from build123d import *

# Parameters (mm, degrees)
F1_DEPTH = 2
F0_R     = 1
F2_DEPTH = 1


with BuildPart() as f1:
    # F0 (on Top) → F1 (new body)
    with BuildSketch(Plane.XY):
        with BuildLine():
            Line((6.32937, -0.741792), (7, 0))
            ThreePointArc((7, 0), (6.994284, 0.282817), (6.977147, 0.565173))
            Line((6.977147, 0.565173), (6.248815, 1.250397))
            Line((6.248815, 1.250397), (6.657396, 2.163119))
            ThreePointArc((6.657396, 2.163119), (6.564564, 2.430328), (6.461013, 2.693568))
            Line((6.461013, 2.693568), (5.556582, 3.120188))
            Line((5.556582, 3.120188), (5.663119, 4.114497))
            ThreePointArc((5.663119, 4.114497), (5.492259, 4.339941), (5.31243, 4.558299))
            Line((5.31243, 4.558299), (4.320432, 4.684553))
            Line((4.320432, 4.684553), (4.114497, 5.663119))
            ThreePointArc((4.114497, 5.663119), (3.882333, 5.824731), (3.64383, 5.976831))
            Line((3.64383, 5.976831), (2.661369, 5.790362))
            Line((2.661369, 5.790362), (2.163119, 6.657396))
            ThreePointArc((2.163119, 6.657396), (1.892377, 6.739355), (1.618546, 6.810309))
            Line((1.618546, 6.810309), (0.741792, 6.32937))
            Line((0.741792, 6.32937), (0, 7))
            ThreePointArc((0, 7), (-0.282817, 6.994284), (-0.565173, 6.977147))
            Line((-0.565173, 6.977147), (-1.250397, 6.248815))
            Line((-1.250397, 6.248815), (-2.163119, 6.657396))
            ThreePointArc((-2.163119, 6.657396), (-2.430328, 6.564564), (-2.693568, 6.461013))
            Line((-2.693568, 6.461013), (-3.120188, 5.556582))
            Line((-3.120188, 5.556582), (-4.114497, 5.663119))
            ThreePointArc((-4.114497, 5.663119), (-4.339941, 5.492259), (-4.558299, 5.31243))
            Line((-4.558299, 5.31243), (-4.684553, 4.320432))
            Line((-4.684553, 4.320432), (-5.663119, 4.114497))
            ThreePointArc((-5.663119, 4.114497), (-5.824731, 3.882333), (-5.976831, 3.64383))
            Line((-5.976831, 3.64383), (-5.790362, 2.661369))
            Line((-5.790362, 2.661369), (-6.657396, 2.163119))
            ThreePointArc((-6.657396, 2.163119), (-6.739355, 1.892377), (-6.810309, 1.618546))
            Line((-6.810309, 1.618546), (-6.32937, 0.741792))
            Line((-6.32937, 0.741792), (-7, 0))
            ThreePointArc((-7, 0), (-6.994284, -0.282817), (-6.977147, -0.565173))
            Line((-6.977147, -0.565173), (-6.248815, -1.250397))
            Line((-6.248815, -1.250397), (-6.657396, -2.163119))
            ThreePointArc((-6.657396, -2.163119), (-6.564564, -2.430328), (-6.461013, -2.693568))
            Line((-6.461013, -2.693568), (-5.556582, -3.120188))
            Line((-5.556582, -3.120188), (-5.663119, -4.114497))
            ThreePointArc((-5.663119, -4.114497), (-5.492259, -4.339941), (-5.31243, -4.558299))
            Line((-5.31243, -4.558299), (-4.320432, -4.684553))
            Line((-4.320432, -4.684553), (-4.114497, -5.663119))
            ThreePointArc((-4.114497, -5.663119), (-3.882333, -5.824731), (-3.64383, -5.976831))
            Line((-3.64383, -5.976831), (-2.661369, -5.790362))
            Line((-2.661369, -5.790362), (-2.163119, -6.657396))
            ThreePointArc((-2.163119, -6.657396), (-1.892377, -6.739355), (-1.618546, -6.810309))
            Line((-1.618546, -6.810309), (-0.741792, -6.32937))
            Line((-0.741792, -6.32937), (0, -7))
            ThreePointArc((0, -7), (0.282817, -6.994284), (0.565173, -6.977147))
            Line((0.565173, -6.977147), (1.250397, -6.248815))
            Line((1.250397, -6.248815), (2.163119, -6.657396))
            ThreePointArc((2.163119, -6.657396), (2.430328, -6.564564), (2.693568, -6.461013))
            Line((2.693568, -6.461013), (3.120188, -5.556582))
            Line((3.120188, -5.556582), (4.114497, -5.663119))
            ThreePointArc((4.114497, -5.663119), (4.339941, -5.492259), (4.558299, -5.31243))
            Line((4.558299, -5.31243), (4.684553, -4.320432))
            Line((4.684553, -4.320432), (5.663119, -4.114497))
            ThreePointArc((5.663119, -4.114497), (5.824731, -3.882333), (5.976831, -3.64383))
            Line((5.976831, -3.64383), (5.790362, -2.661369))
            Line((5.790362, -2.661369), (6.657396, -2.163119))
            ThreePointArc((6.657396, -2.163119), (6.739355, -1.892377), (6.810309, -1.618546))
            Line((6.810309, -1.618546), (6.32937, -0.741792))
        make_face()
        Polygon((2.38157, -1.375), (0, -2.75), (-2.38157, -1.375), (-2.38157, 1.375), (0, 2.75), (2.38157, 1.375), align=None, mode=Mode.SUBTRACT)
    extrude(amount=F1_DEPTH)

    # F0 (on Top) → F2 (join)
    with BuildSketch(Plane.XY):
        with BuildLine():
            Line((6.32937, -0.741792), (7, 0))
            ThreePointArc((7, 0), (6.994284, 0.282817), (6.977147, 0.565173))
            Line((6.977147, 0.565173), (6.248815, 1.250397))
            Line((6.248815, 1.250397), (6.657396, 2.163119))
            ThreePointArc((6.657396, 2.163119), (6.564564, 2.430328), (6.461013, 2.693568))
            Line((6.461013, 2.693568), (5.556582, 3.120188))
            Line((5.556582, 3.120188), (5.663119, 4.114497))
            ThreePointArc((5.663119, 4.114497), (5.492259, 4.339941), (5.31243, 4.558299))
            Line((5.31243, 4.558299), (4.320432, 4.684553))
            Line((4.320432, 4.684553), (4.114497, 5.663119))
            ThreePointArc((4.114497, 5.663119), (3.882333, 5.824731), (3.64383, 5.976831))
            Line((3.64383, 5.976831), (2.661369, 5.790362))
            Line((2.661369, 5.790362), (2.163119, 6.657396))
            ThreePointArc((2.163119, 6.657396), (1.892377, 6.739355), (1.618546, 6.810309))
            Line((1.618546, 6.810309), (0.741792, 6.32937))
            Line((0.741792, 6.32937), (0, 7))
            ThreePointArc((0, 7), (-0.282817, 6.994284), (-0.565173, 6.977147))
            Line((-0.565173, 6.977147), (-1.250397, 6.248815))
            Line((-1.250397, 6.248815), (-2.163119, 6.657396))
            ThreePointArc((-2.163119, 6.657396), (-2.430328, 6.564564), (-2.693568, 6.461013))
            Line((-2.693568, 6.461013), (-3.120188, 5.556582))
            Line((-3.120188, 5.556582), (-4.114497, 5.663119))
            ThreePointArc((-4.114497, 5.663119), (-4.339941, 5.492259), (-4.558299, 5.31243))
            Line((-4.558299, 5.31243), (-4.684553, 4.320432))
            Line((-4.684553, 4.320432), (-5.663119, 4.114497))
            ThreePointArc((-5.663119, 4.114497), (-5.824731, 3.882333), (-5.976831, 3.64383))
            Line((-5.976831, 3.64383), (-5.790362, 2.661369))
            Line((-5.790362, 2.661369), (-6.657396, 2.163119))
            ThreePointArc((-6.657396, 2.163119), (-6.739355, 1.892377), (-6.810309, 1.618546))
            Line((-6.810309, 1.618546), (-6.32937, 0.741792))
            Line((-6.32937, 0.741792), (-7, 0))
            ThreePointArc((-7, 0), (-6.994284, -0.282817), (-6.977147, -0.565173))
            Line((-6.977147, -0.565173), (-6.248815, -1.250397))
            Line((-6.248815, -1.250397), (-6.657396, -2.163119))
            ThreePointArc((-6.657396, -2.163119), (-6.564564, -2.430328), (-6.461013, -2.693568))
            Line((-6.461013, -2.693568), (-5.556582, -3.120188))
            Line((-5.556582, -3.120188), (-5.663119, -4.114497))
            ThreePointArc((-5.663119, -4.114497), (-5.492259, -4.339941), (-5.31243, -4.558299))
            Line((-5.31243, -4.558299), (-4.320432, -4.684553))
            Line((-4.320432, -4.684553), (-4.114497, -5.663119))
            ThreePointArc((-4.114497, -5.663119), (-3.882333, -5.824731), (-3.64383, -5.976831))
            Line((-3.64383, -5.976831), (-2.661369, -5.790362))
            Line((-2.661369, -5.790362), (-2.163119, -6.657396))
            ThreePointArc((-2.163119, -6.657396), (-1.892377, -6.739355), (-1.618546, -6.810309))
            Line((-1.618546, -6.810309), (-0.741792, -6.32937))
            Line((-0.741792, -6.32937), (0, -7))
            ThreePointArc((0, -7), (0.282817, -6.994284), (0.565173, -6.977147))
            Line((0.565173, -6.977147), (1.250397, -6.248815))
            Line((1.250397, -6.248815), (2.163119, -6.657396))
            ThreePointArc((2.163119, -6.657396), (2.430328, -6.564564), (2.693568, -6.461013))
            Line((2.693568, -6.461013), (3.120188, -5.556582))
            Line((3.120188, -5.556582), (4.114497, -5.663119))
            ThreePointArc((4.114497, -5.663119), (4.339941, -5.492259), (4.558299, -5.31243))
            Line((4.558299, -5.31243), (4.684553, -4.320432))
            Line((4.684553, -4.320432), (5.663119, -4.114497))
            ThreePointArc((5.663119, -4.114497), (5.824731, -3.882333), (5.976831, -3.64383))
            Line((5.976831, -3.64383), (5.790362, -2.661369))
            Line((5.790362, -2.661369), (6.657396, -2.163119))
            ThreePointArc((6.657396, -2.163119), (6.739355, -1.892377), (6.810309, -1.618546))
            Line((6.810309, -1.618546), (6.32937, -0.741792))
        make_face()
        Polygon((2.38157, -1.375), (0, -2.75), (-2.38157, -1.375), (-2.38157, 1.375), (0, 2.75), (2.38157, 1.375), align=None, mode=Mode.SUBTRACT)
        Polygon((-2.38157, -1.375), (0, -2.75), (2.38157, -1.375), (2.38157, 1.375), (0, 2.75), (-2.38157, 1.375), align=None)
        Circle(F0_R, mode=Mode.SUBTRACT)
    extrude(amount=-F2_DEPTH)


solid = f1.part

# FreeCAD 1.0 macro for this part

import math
import FreeCAD as App
import Part
import Sketcher
Q = App.Units.Quantity

doc = App.newDocument("Part")
body = doc.addObject("PartDesign::Body", "Body")

sketch1 = body.newObject("Sketcher::SketchObject", "Sketch")
sketch1.AttachmentSupport = (doc.getObject("XY_Plane"), [""])
sketch1.MapMode = "FlatFace"
sketch1.addGeometry([
    Part.LineSegment(App.Vector(6.32937, -0.741792, 0), App.Vector(7, 0, 0)),
    Part.ArcOfCircle(Part.Circle(App.Vector(-0.000547, -0.000021, 0), App.Vector(0, 0, 1), 7.000547), math.radians(0.000176), math.radians(4.630858)),
    Part.LineSegment(App.Vector(6.977147, 0.565173, 0), App.Vector(6.248815, 1.250397, 0)),
    Part.LineSegment(App.Vector(6.248815, 1.250397, 0), App.Vector(6.657396, 2.163119, 0)),
    Part.ArcOfCircle(Part.Circle(App.Vector(-0.00055, -0.000211, 0), App.Vector(0, 0, 1), 7.000589), math.radians(18.00025), math.radians(22.630903)),
    Part.LineSegment(App.Vector(6.461013, 2.693568, 0), App.Vector(5.556582, 3.120188, 0)),
    Part.LineSegment(App.Vector(5.556582, 3.120188, 0), App.Vector(5.663119, 4.114497, 0)),
    Part.ArcOfCircle(Part.Circle(App.Vector(-0.000379, -0.000299, 0), App.Vector(0, 0, 1), 7.000483), math.radians(36.000162), math.radians(40.630889)),
    Part.LineSegment(App.Vector(5.31243, 4.558299, 0), App.Vector(4.320432, 4.684553, 0)),
    Part.LineSegment(App.Vector(4.320432, 4.684553, 0), App.Vector(4.114497, 5.663119, 0)),
    Part.ArcOfCircle(Part.Circle(App.Vector(-0.000166, -0.000244, 0), App.Vector(0, 0, 1), 7.000295), math.radians(54.000071), math.radians(58.630919)),
    Part.LineSegment(App.Vector(3.64383, 5.976831, 0), App.Vector(2.661369, 5.790362, 0)),
    Part.LineSegment(App.Vector(2.661369, 5.790362, 0), App.Vector(2.163119, 6.657396, 0)),
    Part.ArcOfCircle(Part.Circle(App.Vector(-0.000138, -0.00051, 0), App.Vector(0, 0, 1), 7.000528), math.radians(72.000215), math.radians(76.630905)),
    Part.LineSegment(App.Vector(1.618546, 6.810309, 0), App.Vector(0.741792, 6.32937, 0)),
    Part.LineSegment(App.Vector(0.741792, 6.32937, 0), App.Vector(0, 7, 0)),
    Part.ArcOfCircle(Part.Circle(App.Vector(0.000021, -0.000547, 0), App.Vector(0, 0, 1), 7.000547), math.radians(90.000176), math.radians(94.630858)),
    Part.LineSegment(App.Vector(-0.565173, 6.977147, 0), App.Vector(-1.250397, 6.248815, 0)),
    Part.LineSegment(App.Vector(-1.250397, 6.248815, 0), App.Vector(-2.163119, 6.657396, 0)),
    Part.ArcOfCircle(Part.Circle(App.Vector(0.000211, -0.00055, 0), App.Vector(0, 0, 1), 7.000589), math.radians(108.00025), math.radians(112.630903)),
    Part.LineSegment(App.Vector(-2.693568, 6.461013, 0), App.Vector(-3.120188, 5.556582, 0)),
    Part.LineSegment(App.Vector(-3.120188, 5.556582, 0), App.Vector(-4.114497, 5.663119, 0)),
    Part.ArcOfCircle(Part.Circle(App.Vector(0.000299, -0.000379, 0), App.Vector(0, 0, 1), 7.000483), math.radians(126.000162), math.radians(130.630889)),
    Part.LineSegment(App.Vector(-4.558299, 5.31243, 0), App.Vector(-4.684553, 4.320432, 0)),
    Part.LineSegment(App.Vector(-4.684553, 4.320432, 0), App.Vector(-5.663119, 4.114497, 0)),
    Part.ArcOfCircle(Part.Circle(App.Vector(0.000244, -0.000166, 0), App.Vector(0, 0, 1), 7.000295), math.radians(144.000071), math.radians(148.630919)),
    Part.LineSegment(App.Vector(-5.976831, 3.64383, 0), App.Vector(-5.790362, 2.661369, 0)),
    Part.LineSegment(App.Vector(-5.790362, 2.661369, 0), App.Vector(-6.657396, 2.163119, 0)),
    Part.ArcOfCircle(Part.Circle(App.Vector(0.00051, -0.000138, 0), App.Vector(0, 0, 1), 7.000528), math.radians(162.000215), math.radians(166.630905)),
    Part.LineSegment(App.Vector(-6.810309, 1.618546, 0), App.Vector(-6.32937, 0.741792, 0)),
    Part.LineSegment(App.Vector(-6.32937, 0.741792, 0), App.Vector(-7, 0, 0)),
    Part.ArcOfCircle(Part.Circle(App.Vector(0.000547, 0.000021, 0), App.Vector(0, 0, 1), 7.000547), math.radians(-179.999824), math.radians(-175.369142)),
    Part.LineSegment(App.Vector(-6.977147, -0.565173, 0), App.Vector(-6.248815, -1.250397, 0)),
    Part.LineSegment(App.Vector(-6.248815, -1.250397, 0), App.Vector(-6.657396, -2.163119, 0)),
    Part.ArcOfCircle(Part.Circle(App.Vector(0.00055, 0.000211, 0), App.Vector(0, 0, 1), 7.000589), math.radians(-161.99975), math.radians(-157.369097)),
    Part.LineSegment(App.Vector(-6.461013, -2.693568, 0), App.Vector(-5.556582, -3.120188, 0)),
    Part.LineSegment(App.Vector(-5.556582, -3.120188, 0), App.Vector(-5.663119, -4.114497, 0)),
    Part.ArcOfCircle(Part.Circle(App.Vector(0.000379, 0.000299, 0), App.Vector(0, 0, 1), 7.000483), math.radians(-143.999838), math.radians(-139.369111)),
    Part.LineSegment(App.Vector(-5.31243, -4.558299, 0), App.Vector(-4.320432, -4.684553, 0)),
    Part.LineSegment(App.Vector(-4.320432, -4.684553, 0), App.Vector(-4.114497, -5.663119, 0)),
    Part.ArcOfCircle(Part.Circle(App.Vector(0.000166, 0.000244, 0), App.Vector(0, 0, 1), 7.000295), math.radians(-125.999929), math.radians(-121.369081)),
    Part.LineSegment(App.Vector(-3.64383, -5.976831, 0), App.Vector(-2.661369, -5.790362, 0)),
    Part.LineSegment(App.Vector(-2.661369, -5.790362, 0), App.Vector(-2.163119, -6.657396, 0)),
    Part.ArcOfCircle(Part.Circle(App.Vector(0.000138, 0.00051, 0), App.Vector(0, 0, 1), 7.000528), math.radians(-107.999785), math.radians(-103.369095)),
    Part.LineSegment(App.Vector(-1.618546, -6.810309, 0), App.Vector(-0.741792, -6.32937, 0)),
    Part.LineSegment(App.Vector(-0.741792, -6.32937, 0), App.Vector(0, -7, 0)),
    Part.ArcOfCircle(Part.Circle(App.Vector(-0.000021, 0.000547, 0), App.Vector(0, 0, 1), 7.000547), math.radians(-89.999824), math.radians(-85.369142)),
    Part.LineSegment(App.Vector(0.565173, -6.977147, 0), App.Vector(1.250397, -6.248815, 0)),
    Part.LineSegment(App.Vector(1.250397, -6.248815, 0), App.Vector(2.163119, -6.657396, 0)),
    Part.ArcOfCircle(Part.Circle(App.Vector(-0.000211, 0.00055, 0), App.Vector(0, 0, 1), 7.000589), math.radians(-71.99975), math.radians(-67.369097)),
    Part.LineSegment(App.Vector(2.693568, -6.461013, 0), App.Vector(3.120188, -5.556582, 0)),
    Part.LineSegment(App.Vector(3.120188, -5.556582, 0), App.Vector(4.114497, -5.663119, 0)),
    Part.ArcOfCircle(Part.Circle(App.Vector(-0.000299, 0.000379, 0), App.Vector(0, 0, 1), 7.000483), math.radians(-53.999838), math.radians(-49.369111)),
    Part.LineSegment(App.Vector(4.558299, -5.31243, 0), App.Vector(4.684553, -4.320432, 0)),
    Part.LineSegment(App.Vector(4.684553, -4.320432, 0), App.Vector(5.663119, -4.114497, 0)),
    Part.ArcOfCircle(Part.Circle(App.Vector(-0.000244, 0.000166, 0), App.Vector(0, 0, 1), 7.000295), math.radians(-35.999929), math.radians(-31.369081)),
    Part.LineSegment(App.Vector(5.976831, -3.64383, 0), App.Vector(5.790362, -2.661369, 0)),
    Part.LineSegment(App.Vector(5.790362, -2.661369, 0), App.Vector(6.657396, -2.163119, 0)),
    Part.ArcOfCircle(Part.Circle(App.Vector(-0.00051, 0.000138, 0), App.Vector(0, 0, 1), 7.000528), math.radians(-17.999785), math.radians(-13.369095)),
    Part.LineSegment(App.Vector(6.810309, -1.618546, 0), App.Vector(6.32937, -0.741792, 0)),
    Part.LineSegment(App.Vector(2.38157, 1.375, 0), App.Vector(2.38157, -1.375, 0)),
    Part.LineSegment(App.Vector(2.38157, -1.375, 0), App.Vector(0, -2.75, 0)),
    Part.LineSegment(App.Vector(0, -2.75, 0), App.Vector(-2.38157, -1.375, 0)),
    Part.LineSegment(App.Vector(-2.38157, -1.375, 0), App.Vector(-2.38157, 1.375, 0)),
    Part.LineSegment(App.Vector(-2.38157, 1.375, 0), App.Vector(0, 2.75, 0)),
    Part.LineSegment(App.Vector(0, 2.75, 0), App.Vector(2.38157, 1.375, 0)),
], False)
sketch1.addConstraint([
    Sketcher.Constraint("Coincident", 0, 2, 1, 1),
    Sketcher.Constraint("Coincident", 1, 2, 2, 1),
    Sketcher.Constraint("Coincident", 2, 2, 3, 1),
    Sketcher.Constraint("Coincident", 3, 2, 4, 1),
    Sketcher.Constraint("Coincident", 4, 2, 5, 1),
    Sketcher.Constraint("Coincident", 5, 2, 6, 1),
    Sketcher.Constraint("Coincident", 6, 2, 7, 1),
    Sketcher.Constraint("Coincident", 7, 2, 8, 1),
    Sketcher.Constraint("Coincident", 8, 2, 9, 1),
    Sketcher.Constraint("Coincident", 9, 2, 10, 1),
    Sketcher.Constraint("Coincident", 10, 2, 11, 1),
    Sketcher.Constraint("Coincident", 11, 2, 12, 1),
    Sketcher.Constraint("Coincident", 12, 2, 13, 1),
    Sketcher.Constraint("Coincident", 13, 2, 14, 1),
    Sketcher.Constraint("Coincident", 14, 2, 15, 1),
    Sketcher.Constraint("Coincident", 15, 2, 16, 1),
    Sketcher.Constraint("Coincident", 16, 2, 17, 1),
    Sketcher.Constraint("Coincident", 17, 2, 18, 1),
    Sketcher.Constraint("Coincident", 18, 2, 19, 1),
    Sketcher.Constraint("Coincident", 19, 2, 20, 1),
    Sketcher.Constraint("Coincident", 20, 2, 21, 1),
    Sketcher.Constraint("Coincident", 21, 2, 22, 1),
    Sketcher.Constraint("Coincident", 22, 2, 23, 1),
    Sketcher.Constraint("Coincident", 23, 2, 24, 1),
    Sketcher.Constraint("Coincident", 24, 2, 25, 1),
    Sketcher.Constraint("Coincident", 25, 2, 26, 1),
    Sketcher.Constraint("Coincident", 26, 2, 27, 1),
    Sketcher.Constraint("Coincident", 27, 2, 28, 1),
    Sketcher.Constraint("Coincident", 28, 2, 29, 1),
    Sketcher.Constraint("Coincident", 29, 2, 30, 1),
    Sketcher.Constraint("Coincident", 30, 2, 31, 1),
    Sketcher.Constraint("Coincident", 31, 2, 32, 1),
    Sketcher.Constraint("Coincident", 32, 2, 33, 1),
    Sketcher.Constraint("Coincident", 33, 2, 34, 1),
    Sketcher.Constraint("Coincident", 34, 2, 35, 1),
    Sketcher.Constraint("Coincident", 35, 2, 36, 1),
    Sketcher.Constraint("Coincident", 36, 2, 37, 1),
    Sketcher.Constraint("Coincident", 37, 2, 38, 1),
    Sketcher.Constraint("Coincident", 38, 2, 39, 1),
    Sketcher.Constraint("Coincident", 39, 2, 40, 1),
    Sketcher.Constraint("Coincident", 40, 2, 41, 1),
    Sketcher.Constraint("Coincident", 41, 2, 42, 1),
    Sketcher.Constraint("Coincident", 42, 2, 43, 1),
    Sketcher.Constraint("Coincident", 43, 2, 44, 1),
    Sketcher.Constraint("Coincident", 44, 2, 45, 1),
    Sketcher.Constraint("Coincident", 45, 2, 46, 1),
    Sketcher.Constraint("Coincident", 46, 2, 47, 1),
    Sketcher.Constraint("Coincident", 47, 2, 48, 1),
    Sketcher.Constraint("Coincident", 48, 2, 49, 1),
    Sketcher.Constraint("Coincident", 49, 2, 50, 1),
    Sketcher.Constraint("Coincident", 50, 2, 51, 1),
    Sketcher.Constraint("Coincident", 51, 2, 52, 1),
    Sketcher.Constraint("Coincident", 52, 2, 53, 1),
    Sketcher.Constraint("Coincident", 53, 2, 54, 1),
    Sketcher.Constraint("Coincident", 54, 2, 55, 1),
    Sketcher.Constraint("Coincident", 55, 2, 56, 1),
    Sketcher.Constraint("Coincident", 56, 2, 57, 1),
    Sketcher.Constraint("Coincident", 57, 2, 58, 1),
    Sketcher.Constraint("Coincident", 58, 2, 59, 1),
    Sketcher.Constraint("Coincident", 59, 2, 0, 1),
    Sketcher.Constraint("Coincident", 60, 2, 61, 1),
    Sketcher.Constraint("Coincident", 61, 2, 62, 1),
    Sketcher.Constraint("Coincident", 62, 2, 63, 1),
    Sketcher.Constraint("Coincident", 63, 2, 64, 1),
    Sketcher.Constraint("Coincident", 64, 2, 65, 1),
    Sketcher.Constraint("Coincident", 65, 2, 60, 1),
    Sketcher.Constraint("Vertical", 60),
    Sketcher.Constraint("Vertical", 63),
    Sketcher.Constraint("Equal", 1, 16),
    Sketcher.Constraint("Equal", 4, 19),
    Sketcher.Constraint("Equal", 7, 22),
    Sketcher.Constraint("Equal", 10, 25),
    Sketcher.Constraint("Equal", 13, 28),
    Sketcher.Constraint("Equal", 16, 31),
    Sketcher.Constraint("Equal", 19, 34),
    Sketcher.Constraint("Equal", 22, 37),
    Sketcher.Constraint("Equal", 25, 40),
    Sketcher.Constraint("Equal", 28, 43),
    Sketcher.Constraint("Equal", 31, 46),
    Sketcher.Constraint("Equal", 34, 49),
    Sketcher.Constraint("Equal", 37, 52),
    Sketcher.Constraint("Equal", 40, 55),
    Sketcher.Constraint("Equal", 43, 58),
    Sketcher.Constraint("Symmetric", 1, 3, 31, 3, -1, 1),
    Sketcher.Constraint("Symmetric", 4, 3, 34, 3, -1, 1),
    Sketcher.Constraint("Symmetric", 7, 3, 37, 3, -1, 1),
    Sketcher.Constraint("Symmetric", 10, 3, 40, 3, -1, 1),
    Sketcher.Constraint("Symmetric", 13, 3, 43, 3, -1, 1),
    Sketcher.Constraint("Symmetric", 16, 3, 46, 3, -1, 1),
    Sketcher.Constraint("Symmetric", 19, 3, 49, 3, -1, 1),
    Sketcher.Constraint("Symmetric", 22, 3, 52, 3, -1, 1),
    Sketcher.Constraint("Symmetric", 25, 3, 55, 3, -1, 1),
    Sketcher.Constraint("Symmetric", 28, 3, 58, 3, -1, 1),
    Sketcher.Constraint("Symmetric", 2, 2, 32, 2, -1, 1),
    Sketcher.Constraint("Symmetric", 5, 2, 35, 2, -1, 1),
    Sketcher.Constraint("Symmetric", 8, 2, 38, 2, -1, 1),
    Sketcher.Constraint("Symmetric", 11, 2, 41, 2, -1, 1),
    Sketcher.Constraint("Symmetric", 14, 2, 44, 2, -1, 1),
    Sketcher.Constraint("Symmetric", 17, 2, 47, 2, -1, 1),
    Sketcher.Constraint("Symmetric", 20, 2, 50, 2, -1, 1),
    Sketcher.Constraint("Symmetric", 23, 2, 53, 2, -1, 1),
    Sketcher.Constraint("Symmetric", 26, 2, 56, 2, -1, 1),
    Sketcher.Constraint("Symmetric", 29, 2, 59, 2, -1, 1),
    Sketcher.Constraint("Symmetric", 60, 2, 63, 2, -1, 1),
    Sketcher.Constraint("Symmetric", 61, 2, 64, 2, -1, 1),
    Sketcher.Constraint("Symmetric", 12, 2, 18, 2, -2),
    Sketcher.Constraint("Symmetric", 9, 2, 21, 2, -2),
    Sketcher.Constraint("Symmetric", 6, 2, 24, 2, -2),
    Sketcher.Constraint("Symmetric", 3, 2, 27, 2, -2),
    Sketcher.Constraint("PointOnObject", 0, 2, -1),
    Sketcher.Constraint("PointOnObject", 15, 2, -2),
    Sketcher.Constraint("PointOnObject", 30, 2, -1),
    Sketcher.Constraint("PointOnObject", 45, 2, -2),
    Sketcher.Constraint("PointOnObject", 61, 2, -2),
    Sketcher.Constraint("Perpendicular", 0, 15),
    Sketcher.Constraint("Perpendicular", 2, 17),
    Sketcher.Constraint("Perpendicular", 3, 18),
    Sketcher.Constraint("Perpendicular", 5, 20),
    Sketcher.Constraint("Perpendicular", 6, 21),
    Sketcher.Constraint("Perpendicular", 8, 23),
    Sketcher.Constraint("Perpendicular", 9, 24),
    Sketcher.Constraint("Perpendicular", 11, 26),
    Sketcher.Constraint("Perpendicular", 12, 27),
    Sketcher.Constraint("Perpendicular", 14, 29),
    Sketcher.Constraint("Perpendicular", 17, 32),
    Sketcher.Constraint("Perpendicular", 18, 33),
    Sketcher.Constraint("Perpendicular", 20, 35),
    Sketcher.Constraint("Perpendicular", 21, 36),
    Sketcher.Constraint("Perpendicular", 23, 38),
    Sketcher.Constraint("Perpendicular", 24, 39),
    Sketcher.Constraint("Perpendicular", 26, 41),
    Sketcher.Constraint("Perpendicular", 27, 42),
    Sketcher.Constraint("Perpendicular", 29, 44),
    Sketcher.Constraint("Perpendicular", 32, 47),
    Sketcher.Constraint("Perpendicular", 33, 48),
    Sketcher.Constraint("Perpendicular", 35, 50),
    Sketcher.Constraint("Perpendicular", 36, 51),
    Sketcher.Constraint("Perpendicular", 38, 53),
    Sketcher.Constraint("Perpendicular", 39, 54),
    Sketcher.Constraint("Perpendicular", 41, 56),
    Sketcher.Constraint("Perpendicular", 42, 57),
    Sketcher.Constraint("Perpendicular", 44, 59),
    Sketcher.Constraint("Parallel", 62, 65),
    Sketcher.Constraint("Horizontal", 60, 2, 62, 2),
    Sketcher.Constraint("Equal", 0, 2),
    Sketcher.Constraint("Equal", 2, 3),
    Sketcher.Constraint("Equal", 3, 5),
    Sketcher.Constraint("Equal", 5, 6),
    Sketcher.Constraint("Equal", 6, 8),
    Sketcher.Constraint("Equal", 8, 9),
    Sketcher.Constraint("Equal", 9, 11),
    Sketcher.Constraint("Equal", 11, 12),
    Sketcher.Constraint("Equal", 12, 14),
    Sketcher.Constraint("Equal", 14, 15),
    Sketcher.Constraint("Equal", 15, 17),
    Sketcher.Constraint("Equal", 17, 18),
    Sketcher.Constraint("Equal", 18, 20),
    Sketcher.Constraint("Equal", 20, 21),
    Sketcher.Constraint("Equal", 21, 23),
    Sketcher.Constraint("Equal", 23, 24),
    Sketcher.Constraint("Equal", 24, 26),
    Sketcher.Constraint("Equal", 26, 27),
    Sketcher.Constraint("Equal", 27, 29),
    Sketcher.Constraint("Angle", 61, Q("-150.000001 deg")),
    Sketcher.Constraint("Distance", 0, Q("1 mm")),
    Sketcher.Constraint("DistanceX", -1, 1, 0, 2, Q("7 mm")),
    Sketcher.Constraint("DistanceY", -1, 1, 15, 2, Q("7 mm")),
    Sketcher.Constraint("DistanceY", 60, 2, 60, 1, Q("2.75 mm")),
    Sketcher.Constraint("Distance", 61, Q("2.75 mm")),
    Sketcher.Constraint("Radius", 4, Q("7.000589 mm")),
    Sketcher.Constraint("Radius", 13, Q("7.000528 mm")),
    Sketcher.Constraint("Radius", 1, Q("7.000547 mm")),
    Sketcher.Constraint("Radius", 7, Q("7.000483 mm")),
    Sketcher.Constraint("Radius", 10, Q("7.000295 mm")),
    Sketcher.Constraint("DistanceY", 7, 3, -1, 1, Q("0.000299 mm")),
    Sketcher.Constraint("DistanceX", -1, 1, 22, 3, Q("0.000299 mm")),
    Sketcher.Constraint("DistanceY", -1, 1, 7, 2, Q("4.558299 mm")),
    Sketcher.Constraint("DistanceX", 22, 2, -1, 1, Q("4.558299 mm")),
    Sketcher.Constraint("DistanceX", 4, 3, -1, 1, Q("0.00055 mm")),
    Sketcher.Constraint("DistanceY", 4, 3, -1, 1, Q("0.000211 mm")),
    Sketcher.Constraint("DistanceX", 7, 3, -1, 1, Q("0.000379 mm")),
    Sketcher.Constraint("DistanceX", 13, 3, -1, 1, Q("0.000138 mm")),
    Sketcher.Constraint("DistanceY", 13, 3, -1, 1, Q("0.00051 mm")),
    Sketcher.Constraint("DistanceY", -1, 1, 3, 2, Q("2.163119 mm")),
    Sketcher.Constraint("DistanceX", -1, 1, 5, 2, Q("5.556582 mm")),
    Sketcher.Constraint("DistanceY", -1, 1, 5, 2, Q("3.120188 mm")),
    Sketcher.Constraint("DistanceX", -1, 1, 10, 2, Q("3.64383 mm")),
    Sketcher.Constraint("DistanceY", -1, 1, 10, 2, Q("5.976831 mm")),
    Sketcher.Constraint("DistanceX", -1, 1, 11, 2, Q("2.661369 mm")),
    Sketcher.Constraint("DistanceY", -1, 1, 13, 2, Q("6.810309 mm")),
    Sketcher.Constraint("DistanceX", -1, 1, 1, 2, Q("6.977147 mm")),
    Sketcher.Constraint("DistanceY", -1, 1, 1, 2, Q("0.565173 mm")),
])
pad1 = body.newObject("PartDesign::Pad", "Pad")
pad1.Profile = sketch1
pad1.Length = 2

sketch2 = body.newObject("Sketcher::SketchObject", "Sketch001")
sketch2.AttachmentSupport = (doc.getObject("XY_Plane"), [""])
sketch2.MapMode = "FlatFace"
sketch2.addGeometry([
    Part.LineSegment(App.Vector(6.32937, -0.741792, 0), App.Vector(7, 0, 0)),
    Part.ArcOfCircle(Part.Circle(App.Vector(-0.000547, -0.000021, 0), App.Vector(0, 0, 1), 7.000547), math.radians(0.000176), math.radians(4.630858)),
    Part.LineSegment(App.Vector(6.977147, 0.565173, 0), App.Vector(6.248815, 1.250397, 0)),
    Part.LineSegment(App.Vector(6.248815, 1.250397, 0), App.Vector(6.657396, 2.163119, 0)),
    Part.ArcOfCircle(Part.Circle(App.Vector(-0.00055, -0.000211, 0), App.Vector(0, 0, 1), 7.000589), math.radians(18.00025), math.radians(22.630903)),
    Part.LineSegment(App.Vector(6.461013, 2.693568, 0), App.Vector(5.556582, 3.120188, 0)),
    Part.LineSegment(App.Vector(5.556582, 3.120188, 0), App.Vector(5.663119, 4.114497, 0)),
    Part.ArcOfCircle(Part.Circle(App.Vector(-0.000379, -0.000299, 0), App.Vector(0, 0, 1), 7.000483), math.radians(36.000162), math.radians(40.630889)),
    Part.LineSegment(App.Vector(5.31243, 4.558299, 0), App.Vector(4.320432, 4.684553, 0)),
    Part.LineSegment(App.Vector(4.320432, 4.684553, 0), App.Vector(4.114497, 5.663119, 0)),
    Part.ArcOfCircle(Part.Circle(App.Vector(-0.000166, -0.000244, 0), App.Vector(0, 0, 1), 7.000295), math.radians(54.000071), math.radians(58.630919)),
    Part.LineSegment(App.Vector(3.64383, 5.976831, 0), App.Vector(2.661369, 5.790362, 0)),
    Part.LineSegment(App.Vector(2.661369, 5.790362, 0), App.Vector(2.163119, 6.657396, 0)),
    Part.ArcOfCircle(Part.Circle(App.Vector(-0.000138, -0.00051, 0), App.Vector(0, 0, 1), 7.000528), math.radians(72.000215), math.radians(76.630905)),
    Part.LineSegment(App.Vector(1.618546, 6.810309, 0), App.Vector(0.741792, 6.32937, 0)),
    Part.LineSegment(App.Vector(0.741792, 6.32937, 0), App.Vector(0, 7, 0)),
    Part.ArcOfCircle(Part.Circle(App.Vector(0.000021, -0.000547, 0), App.Vector(0, 0, 1), 7.000547), math.radians(90.000176), math.radians(94.630858)),
    Part.LineSegment(App.Vector(-0.565173, 6.977147, 0), App.Vector(-1.250397, 6.248815, 0)),
    Part.LineSegment(App.Vector(-1.250397, 6.248815, 0), App.Vector(-2.163119, 6.657396, 0)),
    Part.ArcOfCircle(Part.Circle(App.Vector(0.000211, -0.00055, 0), App.Vector(0, 0, 1), 7.000589), math.radians(108.00025), math.radians(112.630903)),
    Part.LineSegment(App.Vector(-2.693568, 6.461013, 0), App.Vector(-3.120188, 5.556582, 0)),
    Part.LineSegment(App.Vector(-3.120188, 5.556582, 0), App.Vector(-4.114497, 5.663119, 0)),
    Part.ArcOfCircle(Part.Circle(App.Vector(0.000299, -0.000379, 0), App.Vector(0, 0, 1), 7.000483), math.radians(126.000162), math.radians(130.630889)),
    Part.LineSegment(App.Vector(-4.558299, 5.31243, 0), App.Vector(-4.684553, 4.320432, 0)),
    Part.LineSegment(App.Vector(-4.684553, 4.320432, 0), App.Vector(-5.663119, 4.114497, 0)),
    Part.ArcOfCircle(Part.Circle(App.Vector(0.000244, -0.000166, 0), App.Vector(0, 0, 1), 7.000295), math.radians(144.000071), math.radians(148.630919)),
    Part.LineSegment(App.Vector(-5.976831, 3.64383, 0), App.Vector(-5.790362, 2.661369, 0)),
    Part.LineSegment(App.Vector(-5.790362, 2.661369, 0), App.Vector(-6.657396, 2.163119, 0)),
    Part.ArcOfCircle(Part.Circle(App.Vector(0.00051, -0.000138, 0), App.Vector(0, 0, 1), 7.000528), math.radians(162.000215), math.radians(166.630905)),
    Part.LineSegment(App.Vector(-6.810309, 1.618546, 0), App.Vector(-6.32937, 0.741792, 0)),
    Part.LineSegment(App.Vector(-6.32937, 0.741792, 0), App.Vector(-7, 0, 0)),
    Part.ArcOfCircle(Part.Circle(App.Vector(0.000547, 0.000021, 0), App.Vector(0, 0, 1), 7.000547), math.radians(-179.999824), math.radians(-175.369142)),
    Part.LineSegment(App.Vector(-6.977147, -0.565173, 0), App.Vector(-6.248815, -1.250397, 0)),
    Part.LineSegment(App.Vector(-6.248815, -1.250397, 0), App.Vector(-6.657396, -2.163119, 0)),
    Part.ArcOfCircle(Part.Circle(App.Vector(0.00055, 0.000211, 0), App.Vector(0, 0, 1), 7.000589), math.radians(-161.99975), math.radians(-157.369097)),
    Part.LineSegment(App.Vector(-6.461013, -2.693568, 0), App.Vector(-5.556582, -3.120188, 0)),
    Part.LineSegment(App.Vector(-5.556582, -3.120188, 0), App.Vector(-5.663119, -4.114497, 0)),
    Part.ArcOfCircle(Part.Circle(App.Vector(0.000379, 0.000299, 0), App.Vector(0, 0, 1), 7.000483), math.radians(-143.999838), math.radians(-139.369111)),
    Part.LineSegment(App.Vector(-5.31243, -4.558299, 0), App.Vector(-4.320432, -4.684553, 0)),
    Part.LineSegment(App.Vector(-4.320432, -4.684553, 0), App.Vector(-4.114497, -5.663119, 0)),
    Part.ArcOfCircle(Part.Circle(App.Vector(0.000166, 0.000244, 0), App.Vector(0, 0, 1), 7.000295), math.radians(-125.999929), math.radians(-121.369081)),
    Part.LineSegment(App.Vector(-3.64383, -5.976831, 0), App.Vector(-2.661369, -5.790362, 0)),
    Part.LineSegment(App.Vector(-2.661369, -5.790362, 0), App.Vector(-2.163119, -6.657396, 0)),
    Part.ArcOfCircle(Part.Circle(App.Vector(0.000138, 0.00051, 0), App.Vector(0, 0, 1), 7.000528), math.radians(-107.999785), math.radians(-103.369095)),
    Part.LineSegment(App.Vector(-1.618546, -6.810309, 0), App.Vector(-0.741792, -6.32937, 0)),
    Part.LineSegment(App.Vector(-0.741792, -6.32937, 0), App.Vector(0, -7, 0)),
    Part.ArcOfCircle(Part.Circle(App.Vector(-0.000021, 0.000547, 0), App.Vector(0, 0, 1), 7.000547), math.radians(-89.999824), math.radians(-85.369142)),
    Part.LineSegment(App.Vector(0.565173, -6.977147, 0), App.Vector(1.250397, -6.248815, 0)),
    Part.LineSegment(App.Vector(1.250397, -6.248815, 0), App.Vector(2.163119, -6.657396, 0)),
    Part.ArcOfCircle(Part.Circle(App.Vector(-0.000211, 0.00055, 0), App.Vector(0, 0, 1), 7.000589), math.radians(-71.99975), math.radians(-67.369097)),
    Part.LineSegment(App.Vector(2.693568, -6.461013, 0), App.Vector(3.120188, -5.556582, 0)),
    Part.LineSegment(App.Vector(3.120188, -5.556582, 0), App.Vector(4.114497, -5.663119, 0)),
    Part.ArcOfCircle(Part.Circle(App.Vector(-0.000299, 0.000379, 0), App.Vector(0, 0, 1), 7.000483), math.radians(-53.999838), math.radians(-49.369111)),
    Part.LineSegment(App.Vector(4.558299, -5.31243, 0), App.Vector(4.684553, -4.320432, 0)),
    Part.LineSegment(App.Vector(4.684553, -4.320432, 0), App.Vector(5.663119, -4.114497, 0)),
    Part.ArcOfCircle(Part.Circle(App.Vector(-0.000244, 0.000166, 0), App.Vector(0, 0, 1), 7.000295), math.radians(-35.999929), math.radians(-31.369081)),
    Part.LineSegment(App.Vector(5.976831, -3.64383, 0), App.Vector(5.790362, -2.661369, 0)),
    Part.LineSegment(App.Vector(5.790362, -2.661369, 0), App.Vector(6.657396, -2.163119, 0)),
    Part.ArcOfCircle(Part.Circle(App.Vector(-0.00051, 0.000138, 0), App.Vector(0, 0, 1), 7.000528), math.radians(-17.999785), math.radians(-13.369095)),
    Part.LineSegment(App.Vector(6.810309, -1.618546, 0), App.Vector(6.32937, -0.741792, 0)),
    Part.Circle(App.Vector(0, 0, 0), App.Vector(0, 0, 1), 1),
], False)
sketch2.addConstraint([
    Sketcher.Constraint("Coincident", 0, 2, 1, 1),
    Sketcher.Constraint("Coincident", 1, 2, 2, 1),
    Sketcher.Constraint("Coincident", 2, 2, 3, 1),
    Sketcher.Constraint("Coincident", 3, 2, 4, 1),
    Sketcher.Constraint("Coincident", 4, 2, 5, 1),
    Sketcher.Constraint("Coincident", 5, 2, 6, 1),
    Sketcher.Constraint("Coincident", 6, 2, 7, 1),
    Sketcher.Constraint("Coincident", 7, 2, 8, 1),
    Sketcher.Constraint("Coincident", 8, 2, 9, 1),
    Sketcher.Constraint("Coincident", 9, 2, 10, 1),
    Sketcher.Constraint("Coincident", 10, 2, 11, 1),
    Sketcher.Constraint("Coincident", 11, 2, 12, 1),
    Sketcher.Constraint("Coincident", 12, 2, 13, 1),
    Sketcher.Constraint("Coincident", 13, 2, 14, 1),
    Sketcher.Constraint("Coincident", 14, 2, 15, 1),
    Sketcher.Constraint("Coincident", 15, 2, 16, 1),
    Sketcher.Constraint("Coincident", 16, 2, 17, 1),
    Sketcher.Constraint("Coincident", 17, 2, 18, 1),
    Sketcher.Constraint("Coincident", 18, 2, 19, 1),
    Sketcher.Constraint("Coincident", 19, 2, 20, 1),
    Sketcher.Constraint("Coincident", 20, 2, 21, 1),
    Sketcher.Constraint("Coincident", 21, 2, 22, 1),
    Sketcher.Constraint("Coincident", 22, 2, 23, 1),
    Sketcher.Constraint("Coincident", 23, 2, 24, 1),
    Sketcher.Constraint("Coincident", 24, 2, 25, 1),
    Sketcher.Constraint("Coincident", 25, 2, 26, 1),
    Sketcher.Constraint("Coincident", 26, 2, 27, 1),
    Sketcher.Constraint("Coincident", 27, 2, 28, 1),
    Sketcher.Constraint("Coincident", 28, 2, 29, 1),
    Sketcher.Constraint("Coincident", 29, 2, 30, 1),
    Sketcher.Constraint("Coincident", 30, 2, 31, 1),
    Sketcher.Constraint("Coincident", 31, 2, 32, 1),
    Sketcher.Constraint("Coincident", 32, 2, 33, 1),
    Sketcher.Constraint("Coincident", 33, 2, 34, 1),
    Sketcher.Constraint("Coincident", 34, 2, 35, 1),
    Sketcher.Constraint("Coincident", 35, 2, 36, 1),
    Sketcher.Constraint("Coincident", 36, 2, 37, 1),
    Sketcher.Constraint("Coincident", 37, 2, 38, 1),
    Sketcher.Constraint("Coincident", 38, 2, 39, 1),
    Sketcher.Constraint("Coincident", 39, 2, 40, 1),
    Sketcher.Constraint("Coincident", 40, 2, 41, 1),
    Sketcher.Constraint("Coincident", 41, 2, 42, 1),
    Sketcher.Constraint("Coincident", 42, 2, 43, 1),
    Sketcher.Constraint("Coincident", 43, 2, 44, 1),
    Sketcher.Constraint("Coincident", 44, 2, 45, 1),
    Sketcher.Constraint("Coincident", 45, 2, 46, 1),
    Sketcher.Constraint("Coincident", 46, 2, 47, 1),
    Sketcher.Constraint("Coincident", 47, 2, 48, 1),
    Sketcher.Constraint("Coincident", 48, 2, 49, 1),
    Sketcher.Constraint("Coincident", 49, 2, 50, 1),
    Sketcher.Constraint("Coincident", 50, 2, 51, 1),
    Sketcher.Constraint("Coincident", 51, 2, 52, 1),
    Sketcher.Constraint("Coincident", 52, 2, 53, 1),
    Sketcher.Constraint("Coincident", 53, 2, 54, 1),
    Sketcher.Constraint("Coincident", 54, 2, 55, 1),
    Sketcher.Constraint("Coincident", 55, 2, 56, 1),
    Sketcher.Constraint("Coincident", 56, 2, 57, 1),
    Sketcher.Constraint("Coincident", 57, 2, 58, 1),
    Sketcher.Constraint("Coincident", 58, 2, 59, 1),
    Sketcher.Constraint("Coincident", 59, 2, 0, 1),
    Sketcher.Constraint("Coincident", 60, 3, -1, 1),
    Sketcher.Constraint("Equal", 1, 16),
    Sketcher.Constraint("Equal", 4, 19),
    Sketcher.Constraint("Equal", 7, 22),
    Sketcher.Constraint("Equal", 10, 25),
    Sketcher.Constraint("Equal", 13, 28),
    Sketcher.Constraint("Equal", 16, 31),
    Sketcher.Constraint("Equal", 19, 34),
    Sketcher.Constraint("Equal", 22, 37),
    Sketcher.Constraint("Equal", 25, 40),
    Sketcher.Constraint("Equal", 28, 43),
    Sketcher.Constraint("Equal", 31, 46),
    Sketcher.Constraint("Equal", 34, 49),
    Sketcher.Constraint("Equal", 37, 52),
    Sketcher.Constraint("Equal", 40, 55),
    Sketcher.Constraint("Equal", 43, 58),
    Sketcher.Constraint("Symmetric", 1, 3, 31, 3, -1, 1),
    Sketcher.Constraint("Symmetric", 4, 3, 34, 3, -1, 1),
    Sketcher.Constraint("Symmetric", 7, 3, 37, 3, -1, 1),
    Sketcher.Constraint("Symmetric", 10, 3, 40, 3, -1, 1),
    Sketcher.Constraint("Symmetric", 13, 3, 43, 3, -1, 1),
    Sketcher.Constraint("Symmetric", 16, 3, 46, 3, -1, 1),
    Sketcher.Constraint("Symmetric", 19, 3, 49, 3, -1, 1),
    Sketcher.Constraint("Symmetric", 22, 3, 52, 3, -1, 1),
    Sketcher.Constraint("Symmetric", 25, 3, 55, 3, -1, 1),
    Sketcher.Constraint("Symmetric", 28, 3, 58, 3, -1, 1),
    Sketcher.Constraint("Symmetric", 2, 2, 32, 2, -1, 1),
    Sketcher.Constraint("Symmetric", 5, 2, 35, 2, -1, 1),
    Sketcher.Constraint("Symmetric", 8, 2, 38, 2, -1, 1),
    Sketcher.Constraint("Symmetric", 11, 2, 41, 2, -1, 1),
    Sketcher.Constraint("Symmetric", 14, 2, 44, 2, -1, 1),
    Sketcher.Constraint("Symmetric", 17, 2, 47, 2, -1, 1),
    Sketcher.Constraint("Symmetric", 20, 2, 50, 2, -1, 1),
    Sketcher.Constraint("Symmetric", 23, 2, 53, 2, -1, 1),
    Sketcher.Constraint("Symmetric", 26, 2, 56, 2, -1, 1),
    Sketcher.Constraint("Symmetric", 29, 2, 59, 2, -1, 1),
    Sketcher.Constraint("Symmetric", 12, 2, 18, 2, -2),
    Sketcher.Constraint("Symmetric", 9, 2, 21, 2, -2),
    Sketcher.Constraint("Symmetric", 6, 2, 24, 2, -2),
    Sketcher.Constraint("Symmetric", 3, 2, 27, 2, -2),
    Sketcher.Constraint("PointOnObject", 0, 2, -1),
    Sketcher.Constraint("PointOnObject", 15, 2, -2),
    Sketcher.Constraint("PointOnObject", 30, 2, -1),
    Sketcher.Constraint("PointOnObject", 45, 2, -2),
    Sketcher.Constraint("Perpendicular", 0, 15),
    Sketcher.Constraint("Perpendicular", 2, 17),
    Sketcher.Constraint("Perpendicular", 3, 18),
    Sketcher.Constraint("Perpendicular", 5, 20),
    Sketcher.Constraint("Perpendicular", 6, 21),
    Sketcher.Constraint("Perpendicular", 8, 23),
    Sketcher.Constraint("Perpendicular", 9, 24),
    Sketcher.Constraint("Perpendicular", 11, 26),
    Sketcher.Constraint("Perpendicular", 12, 27),
    Sketcher.Constraint("Perpendicular", 14, 29),
    Sketcher.Constraint("Perpendicular", 17, 32),
    Sketcher.Constraint("Perpendicular", 18, 33),
    Sketcher.Constraint("Perpendicular", 20, 35),
    Sketcher.Constraint("Perpendicular", 21, 36),
    Sketcher.Constraint("Perpendicular", 23, 38),
    Sketcher.Constraint("Perpendicular", 24, 39),
    Sketcher.Constraint("Perpendicular", 26, 41),
    Sketcher.Constraint("Perpendicular", 27, 42),
    Sketcher.Constraint("Perpendicular", 29, 44),
    Sketcher.Constraint("Perpendicular", 32, 47),
    Sketcher.Constraint("Perpendicular", 33, 48),
    Sketcher.Constraint("Perpendicular", 35, 50),
    Sketcher.Constraint("Perpendicular", 36, 51),
    Sketcher.Constraint("Perpendicular", 38, 53),
    Sketcher.Constraint("Perpendicular", 39, 54),
    Sketcher.Constraint("Perpendicular", 41, 56),
    Sketcher.Constraint("Perpendicular", 42, 57),
    Sketcher.Constraint("Perpendicular", 44, 59),
    Sketcher.Constraint("Equal", 0, 2),
    Sketcher.Constraint("Equal", 2, 3),
    Sketcher.Constraint("Equal", 3, 5),
    Sketcher.Constraint("Equal", 5, 6),
    Sketcher.Constraint("Equal", 6, 8),
    Sketcher.Constraint("Equal", 8, 9),
    Sketcher.Constraint("Equal", 9, 11),
    Sketcher.Constraint("Equal", 11, 12),
    Sketcher.Constraint("Equal", 12, 14),
    Sketcher.Constraint("Equal", 14, 15),
    Sketcher.Constraint("Equal", 15, 17),
    Sketcher.Constraint("Equal", 17, 18),
    Sketcher.Constraint("Equal", 18, 20),
    Sketcher.Constraint("Equal", 20, 21),
    Sketcher.Constraint("Equal", 21, 23),
    Sketcher.Constraint("Equal", 23, 24),
    Sketcher.Constraint("Equal", 24, 26),
    Sketcher.Constraint("Equal", 26, 27),
    Sketcher.Constraint("Equal", 27, 29),
    Sketcher.Constraint("Diameter", 60, Q("2 mm")),
    Sketcher.Constraint("Distance", 0, Q("1 mm")),
    Sketcher.Constraint("DistanceX", -1, 1, 0, 2, Q("7 mm")),
    Sketcher.Constraint("DistanceY", -1, 1, 15, 2, Q("7 mm")),
    Sketcher.Constraint("Radius", 4, Q("7.000589 mm")),
    Sketcher.Constraint("Radius", 13, Q("7.000528 mm")),
    Sketcher.Constraint("Radius", 1, Q("7.000547 mm")),
    Sketcher.Constraint("Radius", 7, Q("7.000483 mm")),
    Sketcher.Constraint("Radius", 10, Q("7.000295 mm")),
    Sketcher.Constraint("DistanceY", 7, 3, -1, 1, Q("0.000299 mm")),
    Sketcher.Constraint("DistanceX", -1, 1, 22, 3, Q("0.000299 mm")),
    Sketcher.Constraint("DistanceY", -1, 1, 7, 2, Q("4.558299 mm")),
    Sketcher.Constraint("DistanceX", 22, 2, -1, 1, Q("4.558299 mm")),
    Sketcher.Constraint("DistanceX", 4, 3, -1, 1, Q("0.00055 mm")),
    Sketcher.Constraint("DistanceY", 4, 3, -1, 1, Q("0.000211 mm")),
    Sketcher.Constraint("DistanceX", 7, 3, -1, 1, Q("0.000379 mm")),
    Sketcher.Constraint("DistanceX", 13, 3, -1, 1, Q("0.000138 mm")),
    Sketcher.Constraint("DistanceY", 13, 3, -1, 1, Q("0.00051 mm")),
    Sketcher.Constraint("DistanceY", -1, 1, 3, 2, Q("2.163119 mm")),
    Sketcher.Constraint("DistanceX", -1, 1, 5, 2, Q("5.556582 mm")),
    Sketcher.Constraint("DistanceY", -1, 1, 5, 2, Q("3.120188 mm")),
    Sketcher.Constraint("DistanceX", -1, 1, 10, 2, Q("3.64383 mm")),
    Sketcher.Constraint("DistanceY", -1, 1, 10, 2, Q("5.976831 mm")),
    Sketcher.Constraint("DistanceX", -1, 1, 11, 2, Q("2.661369 mm")),
    Sketcher.Constraint("DistanceY", -1, 1, 13, 2, Q("6.810309 mm")),
    Sketcher.Constraint("DistanceX", -1, 1, 1, 2, Q("6.977147 mm")),
    Sketcher.Constraint("DistanceY", -1, 1, 1, 2, Q("0.565173 mm")),
])
pad2 = body.newObject("PartDesign::Pad", "Pad001")
pad2.Profile = sketch2
pad2.Length = 1
pad2.Reversed = True

doc.recompute()
